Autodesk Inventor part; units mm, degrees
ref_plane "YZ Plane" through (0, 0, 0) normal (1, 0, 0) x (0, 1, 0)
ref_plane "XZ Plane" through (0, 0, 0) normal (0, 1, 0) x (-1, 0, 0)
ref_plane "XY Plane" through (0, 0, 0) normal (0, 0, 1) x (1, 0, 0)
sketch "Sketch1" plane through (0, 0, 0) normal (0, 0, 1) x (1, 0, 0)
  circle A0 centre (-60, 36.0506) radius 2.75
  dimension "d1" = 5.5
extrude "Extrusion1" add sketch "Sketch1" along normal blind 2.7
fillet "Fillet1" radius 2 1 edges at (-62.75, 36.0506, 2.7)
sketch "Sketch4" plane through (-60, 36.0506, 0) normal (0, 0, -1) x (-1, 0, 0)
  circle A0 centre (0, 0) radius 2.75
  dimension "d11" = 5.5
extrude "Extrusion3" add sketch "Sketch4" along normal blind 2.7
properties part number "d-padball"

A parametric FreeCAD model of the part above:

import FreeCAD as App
import Part
import Sketcher

V = App.Vector


def edges_at(feature, points):
    """Names of the edges that pass closest to the given points."""
    edges = feature.Shape.Edges
    near = lambda p: min(range(len(edges)), key=lambda i: edges[i].distToShape(Part.Vertex(*p))[0])
    return sorted({f"Edge{near(p) + 1}" for p in points})

doc = App.newDocument("Part")
body = doc.addObject("PartDesign::Body", "Body")

# Sketch on XY plane
sketch1 = body.newObject("Sketcher::SketchObject", "Sketch")
sketch1.AttachmentSupport = (doc.getObject("XY_Plane"), [""])
sketch1.MapMode = "FlatFace"
sketch1.addGeometry(Part.Circle(V(-60, 36.1, 0), V(0, 0, 1), 2.8), False)
sketch1.addConstraint(Sketcher.Constraint("Diameter", 0, 5.5))
sketch1.addConstraint(Sketcher.Constraint("DistanceX", 0, 3, -1, 1, 60.0))
sketch1.addConstraint(Sketcher.Constraint("DistanceY", -1, 1, 0, 3, 36.0506))
pad1 = body.newObject("PartDesign::Pad", "Pad")
pad1.Profile = sketch1
pad1.Length = 2.7
doc.recompute()

fillet = body.newObject("PartDesign::Fillet", "Fillet")
fillet.Base = (pad1, edges_at(pad1, [(-62.75, 36.051, 2.7)]))
fillet.Radius = 2

# Sketch on XY plane
sketch2 = body.newObject("Sketcher::SketchObject", "Sketch001")
sketch2.AttachmentSupport = (doc.getObject("XY_Plane"), [""])
sketch2.MapMode = "FlatFace"
sketch2.addGeometry(Part.Circle(V(-60, 36.1, 0), V(0, 0, 1), 2.8), False)
sketch2.addConstraint(Sketcher.Constraint("Diameter", 0, 5.5))
sketch2.addConstraint(Sketcher.Constraint("DistanceX", 0, 3, -1, 1, 60.0))
sketch2.addConstraint(Sketcher.Constraint("DistanceY", -1, 1, 0, 3, 36.0506))
pad2 = body.newObject("PartDesign::Pad", "Pad001")
pad2.Profile = sketch2
pad2.Length = 2.7
pad2.Reversed = True

doc.recompute()
